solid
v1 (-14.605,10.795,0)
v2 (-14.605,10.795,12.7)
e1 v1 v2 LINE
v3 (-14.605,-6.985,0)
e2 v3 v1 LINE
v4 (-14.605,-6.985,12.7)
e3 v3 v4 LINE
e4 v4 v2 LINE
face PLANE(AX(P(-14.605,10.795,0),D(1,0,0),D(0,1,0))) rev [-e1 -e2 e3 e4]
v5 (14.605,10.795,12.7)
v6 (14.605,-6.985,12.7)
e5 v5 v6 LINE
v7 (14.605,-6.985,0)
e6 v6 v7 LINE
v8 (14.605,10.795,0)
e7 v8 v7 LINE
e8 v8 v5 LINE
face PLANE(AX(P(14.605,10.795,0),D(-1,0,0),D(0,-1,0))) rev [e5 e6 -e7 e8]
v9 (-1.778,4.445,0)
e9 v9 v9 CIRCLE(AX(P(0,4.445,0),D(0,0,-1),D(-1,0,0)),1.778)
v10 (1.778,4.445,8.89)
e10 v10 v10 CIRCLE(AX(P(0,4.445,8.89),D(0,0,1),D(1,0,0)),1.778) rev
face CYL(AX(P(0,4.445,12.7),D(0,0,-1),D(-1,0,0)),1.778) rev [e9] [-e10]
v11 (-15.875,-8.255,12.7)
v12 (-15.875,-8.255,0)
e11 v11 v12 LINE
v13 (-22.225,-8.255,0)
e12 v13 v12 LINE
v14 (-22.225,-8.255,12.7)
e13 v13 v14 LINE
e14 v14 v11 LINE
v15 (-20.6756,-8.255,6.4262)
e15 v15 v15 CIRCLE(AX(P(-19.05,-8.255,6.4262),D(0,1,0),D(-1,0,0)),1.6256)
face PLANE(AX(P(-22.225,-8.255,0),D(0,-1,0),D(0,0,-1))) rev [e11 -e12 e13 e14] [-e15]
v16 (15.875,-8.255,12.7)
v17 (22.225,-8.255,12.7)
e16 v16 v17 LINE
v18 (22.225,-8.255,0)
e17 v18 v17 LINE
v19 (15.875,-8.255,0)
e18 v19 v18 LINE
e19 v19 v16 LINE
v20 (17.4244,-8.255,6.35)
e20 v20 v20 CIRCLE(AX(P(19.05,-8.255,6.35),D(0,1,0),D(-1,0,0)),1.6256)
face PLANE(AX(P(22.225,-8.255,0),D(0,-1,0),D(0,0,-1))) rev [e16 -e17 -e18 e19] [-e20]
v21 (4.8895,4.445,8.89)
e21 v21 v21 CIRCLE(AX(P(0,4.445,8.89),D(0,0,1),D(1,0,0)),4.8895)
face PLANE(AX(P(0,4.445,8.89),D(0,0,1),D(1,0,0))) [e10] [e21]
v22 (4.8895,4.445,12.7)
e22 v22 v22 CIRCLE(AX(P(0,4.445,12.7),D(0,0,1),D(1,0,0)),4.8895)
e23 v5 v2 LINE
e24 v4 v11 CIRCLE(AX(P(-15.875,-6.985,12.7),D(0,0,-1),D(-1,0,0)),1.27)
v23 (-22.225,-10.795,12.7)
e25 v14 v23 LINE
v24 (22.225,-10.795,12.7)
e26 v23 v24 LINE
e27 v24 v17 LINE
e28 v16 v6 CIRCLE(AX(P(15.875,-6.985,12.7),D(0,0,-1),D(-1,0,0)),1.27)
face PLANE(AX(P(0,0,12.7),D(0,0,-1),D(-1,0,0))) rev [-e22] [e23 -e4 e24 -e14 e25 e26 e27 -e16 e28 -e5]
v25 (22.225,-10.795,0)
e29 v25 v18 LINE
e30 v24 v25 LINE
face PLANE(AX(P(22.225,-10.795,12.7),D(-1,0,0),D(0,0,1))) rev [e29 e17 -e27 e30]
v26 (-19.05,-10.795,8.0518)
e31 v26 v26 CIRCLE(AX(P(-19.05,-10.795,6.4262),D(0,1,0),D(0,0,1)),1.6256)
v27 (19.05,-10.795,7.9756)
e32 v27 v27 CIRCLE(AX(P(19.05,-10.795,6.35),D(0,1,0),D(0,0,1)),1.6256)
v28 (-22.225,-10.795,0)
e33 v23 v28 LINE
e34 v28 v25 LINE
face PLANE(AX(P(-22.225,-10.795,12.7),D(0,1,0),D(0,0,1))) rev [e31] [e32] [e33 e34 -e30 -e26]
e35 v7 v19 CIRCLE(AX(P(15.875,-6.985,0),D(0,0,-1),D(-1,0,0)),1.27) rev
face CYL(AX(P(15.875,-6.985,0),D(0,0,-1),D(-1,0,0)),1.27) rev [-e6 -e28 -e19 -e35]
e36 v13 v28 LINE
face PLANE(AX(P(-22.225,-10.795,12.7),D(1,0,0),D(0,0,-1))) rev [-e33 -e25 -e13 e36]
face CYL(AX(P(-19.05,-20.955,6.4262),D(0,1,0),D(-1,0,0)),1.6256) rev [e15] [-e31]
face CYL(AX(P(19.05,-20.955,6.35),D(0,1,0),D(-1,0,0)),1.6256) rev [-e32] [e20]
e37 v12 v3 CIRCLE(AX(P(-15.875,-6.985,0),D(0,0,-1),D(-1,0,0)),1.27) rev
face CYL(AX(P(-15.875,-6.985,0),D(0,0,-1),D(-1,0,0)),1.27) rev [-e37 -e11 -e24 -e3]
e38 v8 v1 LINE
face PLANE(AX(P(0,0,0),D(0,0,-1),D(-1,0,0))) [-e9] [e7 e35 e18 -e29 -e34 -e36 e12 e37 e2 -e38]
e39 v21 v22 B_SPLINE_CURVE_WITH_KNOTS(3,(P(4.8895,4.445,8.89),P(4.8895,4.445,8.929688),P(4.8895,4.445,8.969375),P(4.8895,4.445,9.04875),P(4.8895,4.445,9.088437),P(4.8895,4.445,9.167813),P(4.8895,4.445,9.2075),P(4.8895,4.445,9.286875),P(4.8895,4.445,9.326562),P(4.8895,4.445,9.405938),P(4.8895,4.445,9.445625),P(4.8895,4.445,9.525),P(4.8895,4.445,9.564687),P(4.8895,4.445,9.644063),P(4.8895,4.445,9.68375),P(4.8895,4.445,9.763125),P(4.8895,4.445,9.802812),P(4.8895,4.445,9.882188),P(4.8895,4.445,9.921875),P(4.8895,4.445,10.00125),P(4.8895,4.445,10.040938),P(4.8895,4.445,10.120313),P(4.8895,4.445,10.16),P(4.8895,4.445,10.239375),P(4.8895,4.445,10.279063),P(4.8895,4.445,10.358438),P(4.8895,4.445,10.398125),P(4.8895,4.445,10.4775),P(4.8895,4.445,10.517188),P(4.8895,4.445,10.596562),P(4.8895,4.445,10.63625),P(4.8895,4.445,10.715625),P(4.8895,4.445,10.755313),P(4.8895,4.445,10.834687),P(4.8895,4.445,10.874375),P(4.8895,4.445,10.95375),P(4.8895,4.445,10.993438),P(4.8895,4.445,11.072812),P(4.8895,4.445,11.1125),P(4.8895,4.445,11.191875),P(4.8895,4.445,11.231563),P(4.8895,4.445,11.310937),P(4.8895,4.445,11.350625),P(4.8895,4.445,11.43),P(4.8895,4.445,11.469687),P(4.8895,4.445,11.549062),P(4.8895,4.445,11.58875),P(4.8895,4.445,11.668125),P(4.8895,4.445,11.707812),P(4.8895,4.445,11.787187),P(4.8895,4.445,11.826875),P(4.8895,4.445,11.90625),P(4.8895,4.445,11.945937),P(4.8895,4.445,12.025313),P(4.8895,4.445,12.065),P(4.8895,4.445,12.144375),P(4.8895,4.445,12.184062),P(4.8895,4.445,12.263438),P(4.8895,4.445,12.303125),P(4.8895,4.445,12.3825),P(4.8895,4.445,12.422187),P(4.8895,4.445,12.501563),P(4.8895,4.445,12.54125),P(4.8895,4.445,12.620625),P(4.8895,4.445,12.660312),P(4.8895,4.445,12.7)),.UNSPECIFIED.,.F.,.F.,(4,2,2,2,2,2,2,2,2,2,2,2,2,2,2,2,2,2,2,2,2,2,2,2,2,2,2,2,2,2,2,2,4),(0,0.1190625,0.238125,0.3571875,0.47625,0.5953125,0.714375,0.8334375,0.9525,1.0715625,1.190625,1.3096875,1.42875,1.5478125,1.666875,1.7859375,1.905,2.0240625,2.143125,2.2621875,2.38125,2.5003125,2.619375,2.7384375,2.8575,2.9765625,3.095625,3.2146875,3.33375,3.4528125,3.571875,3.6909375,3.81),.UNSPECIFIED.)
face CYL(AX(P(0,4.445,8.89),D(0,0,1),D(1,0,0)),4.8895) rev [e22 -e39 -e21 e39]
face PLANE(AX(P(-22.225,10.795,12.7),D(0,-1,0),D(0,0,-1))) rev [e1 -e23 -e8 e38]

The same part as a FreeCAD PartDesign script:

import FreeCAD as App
import Part
import Sketcher

V = App.Vector
Q = App.Units.Quantity


def edges_at(feature, points):
    """Names of the edges that pass closest to the given points."""
    edges = feature.Shape.Edges
    near = lambda p: min(range(len(edges)), key=lambda i: edges[i].distToShape(Part.Vertex(*p))[0])
    return sorted({f"Edge{near(p) + 1}" for p in points})


def add_polygon(sketch, points):
    """Adds a closed chain of lines whose ends are joined by coincident constraints."""
    first, n = sketch.GeometryCount, len(points)
    for a, b in zip(points, points[1:] + points[:1]):
        sketch.addGeometry(Part.LineSegment(App.Vector(*a, 0), App.Vector(*b, 0)), False)
    for i in range(n):
        sketch.addConstraint(Sketcher.Constraint("Coincident", first + i, 2, first + (i + 1) % n, 1))

doc = App.newDocument("Part")
body = doc.addObject("PartDesign::Body", "Body")

# Sketch on XY plane
sketch1 = body.newObject("Sketcher::SketchObject", "Sketch")
sketch1.AttachmentSupport = (doc.getObject("XY_Plane"), [""])
sketch1.MapMode = "FlatFace"
add_polygon(sketch1, [(-22.225, 10.795), (-22.225, -10.795), (22.225, -10.795), (22.225, 10.795)])  # lines 0-3
sketch1.addConstraint(Sketcher.Constraint("Vertical", 0))
sketch1.addConstraint(Sketcher.Constraint("Horizontal", 1))
sketch1.addConstraint(Sketcher.Constraint("Vertical", 2))
sketch1.addConstraint(Sketcher.Constraint("Horizontal", 3))
sketch1.addConstraint(Sketcher.Constraint("Symmetric", 0, 2, 2, 2, -1, 1))
sketch1.addConstraint(Sketcher.Constraint("DistanceX", 1, 1, 1, 2, Q("1.75 in")))
sketch1.addConstraint(Sketcher.Constraint("DistanceY", 0, 2, 0, 1, Q("0.85 in")))
pad1 = body.newObject("PartDesign::Pad", "Pad")
pad1.Profile = sketch1
pad1.Length = Q("0.5 in")

# Sketch on XY plane
sketch2 = body.newObject("Sketcher::SketchObject", "Sketch001")
sketch2.AttachmentSupport = (doc.getObject("XY_Plane"), [""])
sketch2.MapMode = "FlatFace"
sketch2.AttachmentOffset = App.Placement(V(0, 0, 0.5 * 25.4), App.Rotation())
add_polygon(sketch2, [(-22.225, 10.795), (-22.225, -8.255), (-14.605, -8.255), (-14.605, 10.795)])  # lines 0-3
add_polygon(sketch2, [(14.605, 10.795), (14.605, -8.255), (22.225, -8.255), (22.225, 10.795)])  # lines 4-7
sketch2.addConstraint(Sketcher.Constraint("Vertical", 0))
sketch2.addConstraint(Sketcher.Constraint("Horizontal", 1))
sketch2.addConstraint(Sketcher.Constraint("Vertical", 2))
sketch2.addConstraint(Sketcher.Constraint("Horizontal", 3))
sketch2.addConstraint(Sketcher.Constraint("Vertical", 4))
sketch2.addConstraint(Sketcher.Constraint("Horizontal", 5))
sketch2.addConstraint(Sketcher.Constraint("Vertical", 6))
sketch2.addConstraint(Sketcher.Constraint("Horizontal", 7))
sketch2.addConstraint(Sketcher.Constraint("Symmetric", 1, 2, 4, 2, -2))
sketch2.addConstraint(Sketcher.Constraint("Symmetric", 3, 2, 6, 2, -2))
sketch2.addConstraint(Sketcher.Constraint("DistanceX", 1, 1, 1, 2, Q("0.3 in")))
sketch2.addConstraint(Sketcher.Constraint("DistanceY", 0, 2, 0, 1, Q("0.75 in")))
sketch2.addConstraint(Sketcher.Constraint("DistanceX", 1, 2, 4, 2, Q("1.15 in")))
sketch2.addConstraint(Sketcher.Constraint("DistanceY", 0, 2, -1, 1, Q("0.325 in")))
pocket1 = body.newObject("PartDesign::Pocket", "Pocket")
pocket1.Profile = sketch2
pocket1.Length = Q("0.5 in")
doc.recompute()

fillet = body.newObject("PartDesign::Fillet", "Fillet")
fillet.Base = (pocket1, edges_at(pocket1, [(-14.605, -8.255, 6.35)]))
fillet.Radius = Q("0.05 in")
doc.recompute()

fillet2 = body.newObject("PartDesign::Fillet", "Fillet001")
fillet2.Base = (fillet, edges_at(fillet, [(14.605, -8.255, 6.35)]))
fillet2.Radius = Q("0.05 in")

# Sketch on XZ plane
sketch3 = body.newObject("Sketcher::SketchObject", "Sketch002")
sketch3.AttachmentSupport = (doc.getObject("XZ_Plane"), [""])
sketch3.MapMode = "FlatFace"
sketch3.AttachmentOffset = App.Placement(V(0, 0, 0.325 * 25.4), App.Rotation())
sketch3.addGeometry(Part.Circle(V(19.05, 6.35, 0), V(0, 0, 1), 1.6256), False)
sketch3.addGeometry(Part.Circle(V(-19.05, 6.4262, 0), V(0, 0, 1), 1.6256), False)
sketch3.addConstraint(Sketcher.Constraint("Equal", 0, 1))
sketch3.addConstraint(Sketcher.Constraint("Diameter", 0, Q("0.128 in")))
sketch3.addConstraint(Sketcher.Constraint("DistanceX", 1, 3, 0, 3, Q("1.5 in")))
sketch3.addConstraint(Sketcher.Constraint("DistanceX", -1, 1, 0, 3, Q("0.75 in")))
sketch3.addConstraint(Sketcher.Constraint("DistanceY", -1, 1, 0, 3, Q("0.25 in")))
sketch3.addConstraint(Sketcher.Constraint("DistanceY", -1, 1, 1, 3, Q("0.253 in")))
pocket2 = body.newObject("PartDesign::Pocket", "Pocket001")
pocket2.Profile = sketch3
pocket2.Length = Q("0.5 in")
pocket2.Reversed = True

# Sketch on XY plane
sketch4 = body.newObject("Sketcher::SketchObject", "Sketch003")
sketch4.AttachmentSupport = (doc.getObject("XY_Plane"), [""])
sketch4.MapMode = "FlatFace"
sketch4.addGeometry(Part.Circle(V(0, 4.445, 0), V(0, 0, 1), 1.778), False)
sketch4.addConstraint(Sketcher.Constraint("PointOnObject", 0, 3, -2))
sketch4.addConstraint(Sketcher.Constraint("Diameter", 0, Q("0.14 in")))
sketch4.addConstraint(Sketcher.Constraint("DistanceY", -1, 1, 0, 3, Q("0.175 in")))
pocket3 = body.newObject("PartDesign::Pocket", "Pocket002")
pocket3.Profile = sketch4
pocket3.Length = Q("0.5 in")
pocket3.Reversed = True

# Sketch on XY plane
sketch5 = body.newObject("Sketcher::SketchObject", "Sketch004")
sketch5.AttachmentSupport = (doc.getObject("XY_Plane"), [""])
sketch5.MapMode = "FlatFace"
sketch5.AttachmentOffset = App.Placement(V(0, 0, 0.5 * 25.4), App.Rotation())
sketch5.addGeometry(Part.Circle(V(0, 4.445, 0), V(0, 0, 1), 4.8895), False)
sketch5.addConstraint(Sketcher.Constraint("PointOnObject", 0, 3, -2))
sketch5.addConstraint(Sketcher.Constraint("Diameter", 0, Q("0.385 in")))
sketch5.addConstraint(Sketcher.Constraint("DistanceY", -1, 1, 0, 3, Q("0.175 in")))
pocket4 = body.newObject("PartDesign::Pocket", "Pocket003")
pocket4.Profile = sketch5
pocket4.Length = Q("0.15 in")

doc.recompute()
